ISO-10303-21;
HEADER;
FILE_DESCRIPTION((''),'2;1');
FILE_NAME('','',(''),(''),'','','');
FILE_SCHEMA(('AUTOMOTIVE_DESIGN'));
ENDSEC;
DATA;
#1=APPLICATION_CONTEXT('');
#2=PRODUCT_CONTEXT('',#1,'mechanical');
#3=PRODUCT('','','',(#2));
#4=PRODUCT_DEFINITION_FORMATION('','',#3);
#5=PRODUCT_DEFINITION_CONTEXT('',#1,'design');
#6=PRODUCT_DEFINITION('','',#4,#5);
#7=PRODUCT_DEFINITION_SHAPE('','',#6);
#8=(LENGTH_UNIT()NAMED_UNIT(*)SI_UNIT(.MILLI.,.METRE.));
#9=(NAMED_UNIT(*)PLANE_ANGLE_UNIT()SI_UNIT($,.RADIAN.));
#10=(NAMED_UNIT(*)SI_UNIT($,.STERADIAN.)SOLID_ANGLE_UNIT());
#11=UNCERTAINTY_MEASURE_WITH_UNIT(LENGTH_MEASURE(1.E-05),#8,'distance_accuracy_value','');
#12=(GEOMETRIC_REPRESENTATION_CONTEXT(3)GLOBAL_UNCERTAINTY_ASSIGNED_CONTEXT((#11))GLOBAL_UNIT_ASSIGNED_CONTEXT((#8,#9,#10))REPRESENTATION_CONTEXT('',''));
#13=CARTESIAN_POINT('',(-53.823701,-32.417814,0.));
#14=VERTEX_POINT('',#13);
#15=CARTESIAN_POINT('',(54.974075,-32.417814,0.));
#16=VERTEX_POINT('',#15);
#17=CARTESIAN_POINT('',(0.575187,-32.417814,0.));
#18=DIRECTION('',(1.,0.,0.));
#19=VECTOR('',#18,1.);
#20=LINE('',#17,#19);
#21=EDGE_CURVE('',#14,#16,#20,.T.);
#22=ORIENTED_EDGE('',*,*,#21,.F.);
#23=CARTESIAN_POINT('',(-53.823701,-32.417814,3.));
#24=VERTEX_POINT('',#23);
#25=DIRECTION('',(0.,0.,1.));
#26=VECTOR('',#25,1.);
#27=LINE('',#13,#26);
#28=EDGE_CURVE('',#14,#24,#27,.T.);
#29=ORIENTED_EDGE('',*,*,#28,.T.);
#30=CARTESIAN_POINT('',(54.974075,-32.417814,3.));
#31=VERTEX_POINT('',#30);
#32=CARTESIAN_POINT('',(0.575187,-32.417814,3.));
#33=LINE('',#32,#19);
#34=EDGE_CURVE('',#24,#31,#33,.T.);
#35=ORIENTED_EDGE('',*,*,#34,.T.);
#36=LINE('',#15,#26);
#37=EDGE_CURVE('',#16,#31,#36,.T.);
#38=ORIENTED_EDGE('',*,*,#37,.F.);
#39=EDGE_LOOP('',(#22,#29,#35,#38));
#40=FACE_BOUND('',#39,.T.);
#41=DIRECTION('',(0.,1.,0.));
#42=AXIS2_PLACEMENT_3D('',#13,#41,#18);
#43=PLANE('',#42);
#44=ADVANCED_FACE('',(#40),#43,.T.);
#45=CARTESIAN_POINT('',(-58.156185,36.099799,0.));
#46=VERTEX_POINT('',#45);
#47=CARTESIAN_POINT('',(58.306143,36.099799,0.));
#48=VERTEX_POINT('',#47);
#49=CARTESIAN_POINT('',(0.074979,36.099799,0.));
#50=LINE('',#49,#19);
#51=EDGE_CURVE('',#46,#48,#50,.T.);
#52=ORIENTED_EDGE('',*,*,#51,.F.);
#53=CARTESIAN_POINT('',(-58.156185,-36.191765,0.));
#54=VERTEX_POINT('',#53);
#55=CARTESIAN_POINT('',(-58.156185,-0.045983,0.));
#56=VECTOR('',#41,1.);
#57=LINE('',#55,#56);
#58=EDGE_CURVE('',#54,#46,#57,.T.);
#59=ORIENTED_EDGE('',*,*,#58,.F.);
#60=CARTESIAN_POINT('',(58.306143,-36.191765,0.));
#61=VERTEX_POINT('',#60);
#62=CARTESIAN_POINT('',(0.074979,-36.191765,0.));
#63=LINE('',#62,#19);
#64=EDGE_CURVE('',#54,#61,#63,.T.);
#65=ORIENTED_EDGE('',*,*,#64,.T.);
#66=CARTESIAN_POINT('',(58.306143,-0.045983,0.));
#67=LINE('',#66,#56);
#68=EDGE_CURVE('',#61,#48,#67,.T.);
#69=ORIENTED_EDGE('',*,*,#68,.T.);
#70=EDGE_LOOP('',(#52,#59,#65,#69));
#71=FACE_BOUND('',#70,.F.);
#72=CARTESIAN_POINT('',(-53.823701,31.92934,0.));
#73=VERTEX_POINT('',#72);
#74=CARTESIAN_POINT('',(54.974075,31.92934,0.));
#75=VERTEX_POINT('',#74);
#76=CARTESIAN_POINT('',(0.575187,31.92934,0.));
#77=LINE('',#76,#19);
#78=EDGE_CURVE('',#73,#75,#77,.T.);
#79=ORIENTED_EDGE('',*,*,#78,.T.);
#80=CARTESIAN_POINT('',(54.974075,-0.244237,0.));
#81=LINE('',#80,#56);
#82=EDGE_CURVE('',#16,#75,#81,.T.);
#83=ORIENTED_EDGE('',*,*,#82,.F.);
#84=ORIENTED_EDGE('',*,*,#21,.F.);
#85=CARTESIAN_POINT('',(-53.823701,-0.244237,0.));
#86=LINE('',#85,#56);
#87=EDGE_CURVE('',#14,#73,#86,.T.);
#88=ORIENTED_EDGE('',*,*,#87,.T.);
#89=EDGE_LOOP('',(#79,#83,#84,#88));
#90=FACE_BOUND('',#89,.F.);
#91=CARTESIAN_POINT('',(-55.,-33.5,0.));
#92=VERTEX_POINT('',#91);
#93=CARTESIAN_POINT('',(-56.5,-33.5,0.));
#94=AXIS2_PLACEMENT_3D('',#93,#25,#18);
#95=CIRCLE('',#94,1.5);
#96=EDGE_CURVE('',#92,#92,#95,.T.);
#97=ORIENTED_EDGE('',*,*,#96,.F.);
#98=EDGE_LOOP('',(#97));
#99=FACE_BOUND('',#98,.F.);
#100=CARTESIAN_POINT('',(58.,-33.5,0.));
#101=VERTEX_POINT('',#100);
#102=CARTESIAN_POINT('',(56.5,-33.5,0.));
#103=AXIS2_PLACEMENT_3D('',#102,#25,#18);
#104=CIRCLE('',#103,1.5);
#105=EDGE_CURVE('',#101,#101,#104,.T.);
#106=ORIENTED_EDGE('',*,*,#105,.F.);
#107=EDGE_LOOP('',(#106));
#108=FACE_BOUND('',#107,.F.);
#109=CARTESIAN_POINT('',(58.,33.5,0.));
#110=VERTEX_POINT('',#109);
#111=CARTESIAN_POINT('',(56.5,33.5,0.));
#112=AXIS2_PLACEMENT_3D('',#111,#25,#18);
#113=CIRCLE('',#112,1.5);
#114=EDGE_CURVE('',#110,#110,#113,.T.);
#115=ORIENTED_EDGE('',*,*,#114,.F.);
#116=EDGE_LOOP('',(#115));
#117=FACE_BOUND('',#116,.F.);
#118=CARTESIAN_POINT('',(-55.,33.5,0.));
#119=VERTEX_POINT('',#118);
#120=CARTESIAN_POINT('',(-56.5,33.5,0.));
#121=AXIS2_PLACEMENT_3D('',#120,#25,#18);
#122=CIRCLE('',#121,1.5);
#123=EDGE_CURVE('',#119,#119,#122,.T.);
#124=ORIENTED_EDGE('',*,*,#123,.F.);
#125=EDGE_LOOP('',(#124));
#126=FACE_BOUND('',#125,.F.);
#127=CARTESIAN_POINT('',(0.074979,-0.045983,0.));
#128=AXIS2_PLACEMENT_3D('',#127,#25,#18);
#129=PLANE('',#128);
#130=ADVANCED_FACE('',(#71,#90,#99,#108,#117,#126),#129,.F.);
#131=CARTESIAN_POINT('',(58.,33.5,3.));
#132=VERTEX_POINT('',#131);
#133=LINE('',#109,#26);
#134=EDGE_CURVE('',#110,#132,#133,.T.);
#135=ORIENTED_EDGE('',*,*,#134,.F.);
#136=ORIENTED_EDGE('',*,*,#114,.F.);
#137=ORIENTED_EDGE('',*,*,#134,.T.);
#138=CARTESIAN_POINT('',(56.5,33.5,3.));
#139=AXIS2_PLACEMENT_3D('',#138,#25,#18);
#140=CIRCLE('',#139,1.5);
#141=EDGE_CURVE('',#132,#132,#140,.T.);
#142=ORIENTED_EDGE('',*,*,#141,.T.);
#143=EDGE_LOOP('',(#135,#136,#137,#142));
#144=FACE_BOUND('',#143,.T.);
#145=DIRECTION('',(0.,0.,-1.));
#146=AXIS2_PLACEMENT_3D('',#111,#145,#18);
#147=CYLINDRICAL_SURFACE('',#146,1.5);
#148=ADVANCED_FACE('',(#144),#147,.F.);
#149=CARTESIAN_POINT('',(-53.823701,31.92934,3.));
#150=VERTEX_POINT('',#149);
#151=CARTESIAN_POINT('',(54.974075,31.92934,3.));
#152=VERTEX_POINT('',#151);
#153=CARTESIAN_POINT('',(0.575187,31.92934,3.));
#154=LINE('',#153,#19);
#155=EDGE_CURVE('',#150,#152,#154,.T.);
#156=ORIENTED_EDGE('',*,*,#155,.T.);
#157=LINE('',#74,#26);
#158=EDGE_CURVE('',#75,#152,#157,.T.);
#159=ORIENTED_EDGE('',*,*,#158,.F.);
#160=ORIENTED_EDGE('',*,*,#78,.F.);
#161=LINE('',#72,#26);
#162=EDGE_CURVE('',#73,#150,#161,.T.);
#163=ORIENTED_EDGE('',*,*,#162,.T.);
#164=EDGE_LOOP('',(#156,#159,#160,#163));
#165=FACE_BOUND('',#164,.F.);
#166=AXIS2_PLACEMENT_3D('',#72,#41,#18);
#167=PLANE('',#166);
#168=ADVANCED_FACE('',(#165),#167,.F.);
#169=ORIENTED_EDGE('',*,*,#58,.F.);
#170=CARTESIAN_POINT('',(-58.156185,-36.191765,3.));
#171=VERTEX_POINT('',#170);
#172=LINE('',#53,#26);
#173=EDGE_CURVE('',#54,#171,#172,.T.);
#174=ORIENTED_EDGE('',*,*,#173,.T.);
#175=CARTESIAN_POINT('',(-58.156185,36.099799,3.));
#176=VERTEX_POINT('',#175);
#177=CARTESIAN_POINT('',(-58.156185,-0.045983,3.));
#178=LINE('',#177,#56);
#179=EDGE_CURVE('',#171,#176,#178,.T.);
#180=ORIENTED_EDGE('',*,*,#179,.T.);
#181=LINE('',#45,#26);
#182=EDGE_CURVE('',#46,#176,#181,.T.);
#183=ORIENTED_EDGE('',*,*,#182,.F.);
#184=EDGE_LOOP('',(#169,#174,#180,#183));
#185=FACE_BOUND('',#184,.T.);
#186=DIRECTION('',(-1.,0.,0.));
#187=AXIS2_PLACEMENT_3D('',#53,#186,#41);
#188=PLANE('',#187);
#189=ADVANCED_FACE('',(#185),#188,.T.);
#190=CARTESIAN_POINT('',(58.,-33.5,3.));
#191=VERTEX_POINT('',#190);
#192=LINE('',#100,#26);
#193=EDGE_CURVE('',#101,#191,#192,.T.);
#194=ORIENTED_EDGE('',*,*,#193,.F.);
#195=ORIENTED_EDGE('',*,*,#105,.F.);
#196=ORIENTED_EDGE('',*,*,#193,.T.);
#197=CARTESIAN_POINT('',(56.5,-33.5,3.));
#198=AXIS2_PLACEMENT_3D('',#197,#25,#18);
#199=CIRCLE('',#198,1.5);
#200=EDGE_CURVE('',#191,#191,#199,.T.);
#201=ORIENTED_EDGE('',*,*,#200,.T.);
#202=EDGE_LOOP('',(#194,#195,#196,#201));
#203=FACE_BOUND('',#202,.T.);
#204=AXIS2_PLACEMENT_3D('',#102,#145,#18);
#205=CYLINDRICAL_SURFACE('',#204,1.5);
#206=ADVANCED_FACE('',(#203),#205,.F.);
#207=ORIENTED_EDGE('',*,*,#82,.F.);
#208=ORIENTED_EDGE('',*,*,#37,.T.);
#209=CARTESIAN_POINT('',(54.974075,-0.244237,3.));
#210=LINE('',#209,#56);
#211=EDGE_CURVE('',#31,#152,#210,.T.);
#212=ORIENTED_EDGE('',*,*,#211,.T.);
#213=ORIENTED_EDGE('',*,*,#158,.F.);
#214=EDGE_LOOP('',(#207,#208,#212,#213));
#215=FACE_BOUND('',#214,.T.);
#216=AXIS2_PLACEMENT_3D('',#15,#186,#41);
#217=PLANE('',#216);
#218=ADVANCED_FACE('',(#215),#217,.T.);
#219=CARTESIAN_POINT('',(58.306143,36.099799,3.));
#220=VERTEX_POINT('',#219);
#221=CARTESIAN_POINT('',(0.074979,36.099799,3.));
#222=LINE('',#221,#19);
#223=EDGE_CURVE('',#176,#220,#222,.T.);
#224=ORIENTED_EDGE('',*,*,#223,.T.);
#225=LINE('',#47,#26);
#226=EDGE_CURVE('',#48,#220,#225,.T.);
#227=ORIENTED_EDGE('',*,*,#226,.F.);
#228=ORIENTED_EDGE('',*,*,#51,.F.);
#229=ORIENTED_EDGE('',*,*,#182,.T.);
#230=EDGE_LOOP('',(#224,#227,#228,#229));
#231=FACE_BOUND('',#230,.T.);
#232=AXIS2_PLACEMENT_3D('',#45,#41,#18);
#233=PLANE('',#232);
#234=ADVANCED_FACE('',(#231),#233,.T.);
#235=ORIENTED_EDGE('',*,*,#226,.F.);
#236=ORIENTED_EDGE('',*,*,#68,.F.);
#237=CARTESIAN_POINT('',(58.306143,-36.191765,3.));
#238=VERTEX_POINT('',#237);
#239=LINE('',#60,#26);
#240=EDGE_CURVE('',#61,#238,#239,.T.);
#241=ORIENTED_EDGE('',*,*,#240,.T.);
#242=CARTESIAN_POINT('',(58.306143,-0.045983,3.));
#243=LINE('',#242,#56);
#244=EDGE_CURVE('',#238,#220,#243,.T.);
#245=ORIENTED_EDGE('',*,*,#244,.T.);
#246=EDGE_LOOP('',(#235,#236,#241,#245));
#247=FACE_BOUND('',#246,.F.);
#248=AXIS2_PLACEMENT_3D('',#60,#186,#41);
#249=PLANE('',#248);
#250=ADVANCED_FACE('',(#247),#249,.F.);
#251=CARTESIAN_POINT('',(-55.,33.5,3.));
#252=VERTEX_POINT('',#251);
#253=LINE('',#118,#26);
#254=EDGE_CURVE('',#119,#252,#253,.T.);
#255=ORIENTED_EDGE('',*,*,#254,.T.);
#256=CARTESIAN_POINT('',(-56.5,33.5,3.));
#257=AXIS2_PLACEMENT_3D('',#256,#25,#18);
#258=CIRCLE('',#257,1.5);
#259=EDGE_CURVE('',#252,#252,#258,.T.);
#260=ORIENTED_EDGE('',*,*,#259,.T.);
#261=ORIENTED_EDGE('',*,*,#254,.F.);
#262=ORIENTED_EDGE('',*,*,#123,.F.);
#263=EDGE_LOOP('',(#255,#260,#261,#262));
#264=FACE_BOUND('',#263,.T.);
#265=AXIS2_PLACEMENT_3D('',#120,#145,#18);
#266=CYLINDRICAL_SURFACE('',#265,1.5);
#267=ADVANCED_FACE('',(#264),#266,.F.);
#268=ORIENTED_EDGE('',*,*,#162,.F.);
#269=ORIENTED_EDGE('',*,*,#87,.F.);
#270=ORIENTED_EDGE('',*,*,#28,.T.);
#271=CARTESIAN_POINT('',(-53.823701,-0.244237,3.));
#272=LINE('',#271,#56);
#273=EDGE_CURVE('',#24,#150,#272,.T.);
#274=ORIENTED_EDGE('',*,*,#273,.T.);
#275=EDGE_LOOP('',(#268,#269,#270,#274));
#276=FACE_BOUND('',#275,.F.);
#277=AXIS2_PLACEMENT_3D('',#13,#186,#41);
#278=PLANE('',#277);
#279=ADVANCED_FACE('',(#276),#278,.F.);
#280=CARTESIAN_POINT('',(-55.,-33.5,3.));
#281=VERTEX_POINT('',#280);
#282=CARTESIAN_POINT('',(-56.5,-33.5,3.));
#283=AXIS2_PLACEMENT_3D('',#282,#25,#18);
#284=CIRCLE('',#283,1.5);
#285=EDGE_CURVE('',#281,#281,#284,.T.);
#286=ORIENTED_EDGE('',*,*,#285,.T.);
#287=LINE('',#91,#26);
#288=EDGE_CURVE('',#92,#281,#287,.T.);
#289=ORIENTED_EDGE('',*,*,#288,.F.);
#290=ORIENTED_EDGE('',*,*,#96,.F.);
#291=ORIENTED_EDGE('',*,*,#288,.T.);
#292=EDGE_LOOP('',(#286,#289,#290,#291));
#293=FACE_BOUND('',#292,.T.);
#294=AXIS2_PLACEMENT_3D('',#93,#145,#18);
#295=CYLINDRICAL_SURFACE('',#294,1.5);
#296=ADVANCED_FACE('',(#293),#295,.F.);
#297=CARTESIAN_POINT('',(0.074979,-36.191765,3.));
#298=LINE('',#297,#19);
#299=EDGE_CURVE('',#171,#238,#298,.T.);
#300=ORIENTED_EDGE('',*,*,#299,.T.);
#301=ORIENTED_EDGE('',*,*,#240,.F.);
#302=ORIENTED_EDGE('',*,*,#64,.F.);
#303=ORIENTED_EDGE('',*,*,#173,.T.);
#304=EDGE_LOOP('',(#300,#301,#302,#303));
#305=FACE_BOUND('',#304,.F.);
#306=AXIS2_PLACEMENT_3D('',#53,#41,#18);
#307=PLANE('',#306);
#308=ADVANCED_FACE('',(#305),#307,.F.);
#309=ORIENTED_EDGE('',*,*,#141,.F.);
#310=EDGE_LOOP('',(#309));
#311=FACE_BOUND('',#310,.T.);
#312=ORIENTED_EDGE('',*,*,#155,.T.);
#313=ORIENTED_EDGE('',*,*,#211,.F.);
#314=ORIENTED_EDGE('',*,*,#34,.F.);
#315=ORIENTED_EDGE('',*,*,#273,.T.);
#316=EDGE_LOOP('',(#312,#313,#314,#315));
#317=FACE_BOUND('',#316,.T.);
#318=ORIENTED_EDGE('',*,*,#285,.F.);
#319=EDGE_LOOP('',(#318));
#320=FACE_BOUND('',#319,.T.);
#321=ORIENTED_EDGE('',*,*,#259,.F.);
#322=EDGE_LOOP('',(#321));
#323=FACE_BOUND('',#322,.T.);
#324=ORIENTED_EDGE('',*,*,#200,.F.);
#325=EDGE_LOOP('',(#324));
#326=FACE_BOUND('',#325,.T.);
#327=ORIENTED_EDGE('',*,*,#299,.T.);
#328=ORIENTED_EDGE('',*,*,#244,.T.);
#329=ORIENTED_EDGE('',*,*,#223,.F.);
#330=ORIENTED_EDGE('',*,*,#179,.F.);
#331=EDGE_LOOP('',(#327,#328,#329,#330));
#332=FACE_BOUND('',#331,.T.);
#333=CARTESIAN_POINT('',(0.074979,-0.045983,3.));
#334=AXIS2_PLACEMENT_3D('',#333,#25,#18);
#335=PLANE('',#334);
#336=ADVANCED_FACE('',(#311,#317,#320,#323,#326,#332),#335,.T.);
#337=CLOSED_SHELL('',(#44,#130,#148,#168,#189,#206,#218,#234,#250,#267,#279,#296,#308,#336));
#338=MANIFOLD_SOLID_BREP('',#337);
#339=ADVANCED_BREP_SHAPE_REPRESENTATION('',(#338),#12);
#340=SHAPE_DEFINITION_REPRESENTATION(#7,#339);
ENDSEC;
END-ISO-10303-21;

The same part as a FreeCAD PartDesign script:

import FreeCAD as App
import Part
import Sketcher

V = App.Vector
Q = App.Units.Quantity


def add_polygon(sketch, points):
    """Adds a closed chain of lines whose ends are joined by coincident constraints."""
    first, n = sketch.GeometryCount, len(points)
    for a, b in zip(points, points[1:] + points[:1]):
        sketch.addGeometry(Part.LineSegment(App.Vector(*a, 0), App.Vector(*b, 0)), False)
    for i in range(n):
        sketch.addConstraint(Sketcher.Constraint("Coincident", first + i, 2, first + (i + 1) % n, 1))

doc = App.newDocument("Part")
body = doc.addObject("PartDesign::Body", "Body")

# Sketch on XY plane
sketch1 = body.newObject("Sketcher::SketchObject", "Sketch")
sketch1.AttachmentSupport = (doc.getObject("XY_Plane"), [""])
sketch1.MapMode = "FlatFace"
add_polygon(sketch1, [(-58.2, 36.1), (-58.2, -36.2), (58.3, -36.2), (58.3, 36.1)])  # lines 0-3
sketch1.addGeometry(Part.Circle(V(-56.5, -33.5, 0), V(0, 0, 1), 1.5), False)  # 4
sketch1.addGeometry(Part.Circle(V(56.5, -33.5, 0), V(0, 0, 1), 1.5), False)  # 5
add_polygon(sketch1, [(55, -32.4), (-53.8, -32.4), (-53.8, 31.9), (55, 31.9)])  # lines 6-9
sketch1.addGeometry(Part.Circle(V(-56.5, 33.5, 0), V(0, 0, 1), 1.5), False)  # 10
sketch1.addGeometry(Part.Circle(V(56.5, 33.5, 0), V(0, 0, 1), 1.5), False)  # 11
sketch1.addConstraint([
    Sketcher.Constraint("Vertical", 0),
    Sketcher.Constraint("Horizontal", 1),
    Sketcher.Constraint("Vertical", 2),
    Sketcher.Constraint("Horizontal", 3),
    Sketcher.Constraint("Horizontal", 6),
    Sketcher.Constraint("Vertical", 7),
    Sketcher.Constraint("Horizontal", 8),
    Sketcher.Constraint("Vertical", 9),
    Sketcher.Constraint("Equal", 4, 5),
    Sketcher.Constraint("Equal", 5, 10),
    Sketcher.Constraint("Equal", 10, 11),
    Sketcher.Constraint("Symmetric", 5, 3, 10, 3, -1, 1),
    Sketcher.Constraint("Symmetric", 4, 3, 11, 3, -1, 1),
    Sketcher.Constraint("Symmetric", 4, 3, 5, 3, -2),
    Sketcher.Constraint("Diameter", 4, Q("3 mm")),
    Sketcher.Constraint("DistanceX", 4, 3, 5, 3, Q("113 mm")),
    Sketcher.Constraint("DistanceY", 4, 3, 10, 3, Q("67 mm")),
    Sketcher.Constraint("DistanceX", 1, 1, 1, 2, Q("116.462328 mm")),
    Sketcher.Constraint("DistanceY", -1, 1, 2, 2, Q("36.099799 mm")),
    Sketcher.Constraint("DistanceX", 6, 2, -1, 1, Q("53.823701 mm")),
    Sketcher.Constraint("DistanceX", 6, 2, 6, 1, Q("108.797777 mm")),
    Sketcher.Constraint("DistanceY", 0, 2, 0, 1, Q("72.291564 mm")),
    Sketcher.Constraint("DistanceY", 7, 1, 7, 2, Q("64.347155 mm")),
    Sketcher.Constraint("DistanceY", -1, 1, 7, 2, Q("31.92934 mm")),
    Sketcher.Constraint("DistanceX", 0, 2, -1, 1, Q("58.156185 mm")),
])
pad1 = body.newObject("PartDesign::Pad", "Pad")
pad1.Profile = sketch1
pad1.Length = 3

doc.recompute()
